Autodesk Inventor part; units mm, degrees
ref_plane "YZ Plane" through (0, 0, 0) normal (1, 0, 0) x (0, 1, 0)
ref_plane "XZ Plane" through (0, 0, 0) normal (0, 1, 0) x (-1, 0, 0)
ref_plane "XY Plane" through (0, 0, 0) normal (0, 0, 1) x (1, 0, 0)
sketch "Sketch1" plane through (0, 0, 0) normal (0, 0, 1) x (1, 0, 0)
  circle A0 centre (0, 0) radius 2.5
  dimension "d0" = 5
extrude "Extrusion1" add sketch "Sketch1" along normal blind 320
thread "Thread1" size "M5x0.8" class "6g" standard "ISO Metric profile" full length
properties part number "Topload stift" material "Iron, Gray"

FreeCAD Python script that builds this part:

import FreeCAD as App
import Part
import Sketcher
from FreeCAD import Vector
Q = App.Units.Quantity

doc = App.newDocument("Part")
body = doc.addObject("PartDesign::Body", "Body")

sketch1 = body.newObject("Sketcher::SketchObject", "Sketch")
sketch1.AttachmentSupport = (doc.getObject("XY_Plane"), [""])
sketch1.MapMode = "FlatFace"
sketch1.addGeometry(Part.Circle(Vector(0, 0, 0), Vector(0, 0, 1), 2.5), False)
sketch1.addConstraint(Sketcher.Constraint("Coincident", 0, 3, -1, 1))
sketch1.addConstraint(Sketcher.Constraint("Diameter", 0, Q("5 mm")))
pad1 = body.newObject("PartDesign::Pad", "Pad")
pad1.Profile = sketch1
pad1.Length = 320

doc.recompute()
